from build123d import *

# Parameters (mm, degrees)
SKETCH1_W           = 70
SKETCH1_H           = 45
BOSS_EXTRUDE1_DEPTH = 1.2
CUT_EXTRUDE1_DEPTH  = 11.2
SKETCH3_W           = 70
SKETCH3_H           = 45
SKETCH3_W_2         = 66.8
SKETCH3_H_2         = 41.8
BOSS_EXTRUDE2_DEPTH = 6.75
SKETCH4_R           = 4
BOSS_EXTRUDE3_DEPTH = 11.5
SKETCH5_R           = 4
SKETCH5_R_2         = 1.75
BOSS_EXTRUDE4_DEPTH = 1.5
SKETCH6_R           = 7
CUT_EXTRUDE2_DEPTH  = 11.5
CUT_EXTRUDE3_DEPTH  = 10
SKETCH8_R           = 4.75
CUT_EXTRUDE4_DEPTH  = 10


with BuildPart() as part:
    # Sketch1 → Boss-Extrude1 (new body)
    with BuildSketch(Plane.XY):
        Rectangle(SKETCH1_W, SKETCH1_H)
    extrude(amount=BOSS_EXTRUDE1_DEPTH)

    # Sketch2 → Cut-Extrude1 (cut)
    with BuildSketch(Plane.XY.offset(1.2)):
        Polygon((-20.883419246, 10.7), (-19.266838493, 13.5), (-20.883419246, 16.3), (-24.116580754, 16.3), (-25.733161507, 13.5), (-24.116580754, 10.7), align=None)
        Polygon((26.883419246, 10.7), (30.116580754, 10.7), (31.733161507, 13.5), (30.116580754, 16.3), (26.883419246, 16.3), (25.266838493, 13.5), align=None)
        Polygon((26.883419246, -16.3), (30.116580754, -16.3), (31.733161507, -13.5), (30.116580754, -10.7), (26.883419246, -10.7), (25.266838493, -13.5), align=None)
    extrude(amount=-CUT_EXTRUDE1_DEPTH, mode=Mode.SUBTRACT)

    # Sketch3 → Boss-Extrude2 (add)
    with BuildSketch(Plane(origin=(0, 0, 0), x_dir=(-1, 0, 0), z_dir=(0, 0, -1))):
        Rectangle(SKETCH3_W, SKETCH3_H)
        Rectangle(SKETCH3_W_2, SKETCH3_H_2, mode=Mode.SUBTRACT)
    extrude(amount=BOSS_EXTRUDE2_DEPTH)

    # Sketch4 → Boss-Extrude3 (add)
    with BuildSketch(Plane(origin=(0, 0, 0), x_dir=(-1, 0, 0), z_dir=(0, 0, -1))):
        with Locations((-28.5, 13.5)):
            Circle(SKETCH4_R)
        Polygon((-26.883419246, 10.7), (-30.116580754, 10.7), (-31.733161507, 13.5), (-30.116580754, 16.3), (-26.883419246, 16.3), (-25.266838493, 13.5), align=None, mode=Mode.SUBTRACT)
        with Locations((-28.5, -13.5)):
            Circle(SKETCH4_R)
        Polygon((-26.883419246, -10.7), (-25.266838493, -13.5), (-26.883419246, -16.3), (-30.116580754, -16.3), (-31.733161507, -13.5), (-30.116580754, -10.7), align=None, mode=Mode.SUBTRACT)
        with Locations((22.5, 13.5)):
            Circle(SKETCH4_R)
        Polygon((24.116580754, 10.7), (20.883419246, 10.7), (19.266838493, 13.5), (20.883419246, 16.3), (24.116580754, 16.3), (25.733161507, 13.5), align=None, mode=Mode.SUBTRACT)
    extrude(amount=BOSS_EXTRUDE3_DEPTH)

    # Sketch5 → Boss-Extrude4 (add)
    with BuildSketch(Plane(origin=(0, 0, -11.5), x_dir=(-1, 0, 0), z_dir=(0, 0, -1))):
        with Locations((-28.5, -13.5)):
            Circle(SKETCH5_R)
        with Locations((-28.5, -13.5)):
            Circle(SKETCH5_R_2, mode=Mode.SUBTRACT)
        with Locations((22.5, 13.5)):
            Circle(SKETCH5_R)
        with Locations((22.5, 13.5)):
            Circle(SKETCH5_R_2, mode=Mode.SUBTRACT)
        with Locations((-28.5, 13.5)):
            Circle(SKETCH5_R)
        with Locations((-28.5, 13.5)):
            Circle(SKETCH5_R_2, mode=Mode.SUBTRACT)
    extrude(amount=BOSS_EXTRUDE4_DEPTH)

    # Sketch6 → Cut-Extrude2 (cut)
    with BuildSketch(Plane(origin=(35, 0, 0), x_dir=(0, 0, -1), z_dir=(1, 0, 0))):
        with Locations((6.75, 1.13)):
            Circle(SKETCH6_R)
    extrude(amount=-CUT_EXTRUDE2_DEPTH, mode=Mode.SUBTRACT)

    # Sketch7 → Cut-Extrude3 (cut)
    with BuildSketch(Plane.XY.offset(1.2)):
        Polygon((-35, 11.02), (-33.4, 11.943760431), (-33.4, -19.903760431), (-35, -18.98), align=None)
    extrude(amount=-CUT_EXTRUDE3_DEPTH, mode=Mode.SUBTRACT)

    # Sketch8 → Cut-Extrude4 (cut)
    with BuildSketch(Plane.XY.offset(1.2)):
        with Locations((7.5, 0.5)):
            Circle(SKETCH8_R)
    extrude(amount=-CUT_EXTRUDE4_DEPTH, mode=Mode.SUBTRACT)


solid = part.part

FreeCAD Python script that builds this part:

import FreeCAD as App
import Part
import Sketcher
from FreeCAD import Vector
Q = App.Units.Quantity

doc = App.newDocument("Part")
params = doc.addObject("Spreadsheet::Sheet", "Params")
for row, (alias, value) in enumerate([
    ("sketch1_width", "70 mm"),
    ("sketch1_height", "45 mm"),
    ("pad1_length", "1.2 mm"),
    ("pocket1_length", "11.2 mm"),
    ("sketch3_width", "70 mm"),
    ("sketch3_height", "45 mm"),
    ("sketch3_width2", "66.8 mm"),
    ("sketch3_height2", "41.8 mm"),
    ("pad2_length", "6.75 mm"),
    ("sketch4_diameter", "8 mm"),
    ("pad3_length", "11.5 mm"),
    ("sketch5_diameter", "8 mm"),
    ("sketch5_diameter2", "3.5 mm"),
    ("pad4_length", "1.5 mm"),
    ("sketch6_diameter", "14 mm"),
    ("pocket2_length", "11.5 mm"),
    ("sketch7_height", "30 mm"),
    ("pocket3_length", "10 mm"),
    ("sketch8_diameter", "9.5 mm"),
    ("pocket4_length", "10 mm"),
], start=1):
    params.set(f"A{row}", alias)
    params.set(f"B{row}", "=" + value)
    params.setAlias(f"B{row}", alias)

body = doc.addObject("PartDesign::Body", "Body")

# Sketch on XY plane
sketch1 = body.newObject("Sketcher::SketchObject", "Sketch")
sketch1.AttachmentSupport = (doc.getObject("XY_Plane"), [""])
sketch1.MapMode = "FlatFace"
sketch1.addGeometry([
    Part.LineSegment(Vector(-35, 22, 0), Vector(-35, -22, 0)),
    Part.LineSegment(Vector(-35, -22, 0), Vector(35, -22, 0)),
    Part.LineSegment(Vector(35, -22, 0), Vector(35, 22, 0)),
    Part.LineSegment(Vector(35, 22, 0), Vector(-35, 22, 0)),
], False)
sketch1.addConstraint([
    Sketcher.Constraint("Coincident", 0, 2, 1, 1),
    Sketcher.Constraint("Coincident", 1, 2, 2, 1),
    Sketcher.Constraint("Coincident", 2, 2, 3, 1),
    Sketcher.Constraint("Coincident", 3, 2, 0, 1),
    Sketcher.Constraint("Vertical", 0),
    Sketcher.Constraint("Horizontal", 1),
    Sketcher.Constraint("Vertical", 2),
    Sketcher.Constraint("Horizontal", 3),
    Sketcher.Constraint("Symmetric", 0, 2, 2, 2, -1, 1),
    Sketcher.Constraint("DistanceX", 1, 1, 1, 2, Q("70 mm")),
    Sketcher.Constraint("DistanceY", 0, 2, 0, 1, Q("45 mm")),
])
sketch1.setExpression("Constraints[9]", "Params.sketch1_width")
sketch1.setExpression("Constraints[10]", "Params.sketch1_height")
pad1 = body.newObject("PartDesign::Pad", "Pad")
pad1.Profile = sketch1
pad1.setExpression("Length", "Params.pad1_length")

# Sketch on XY plane
sketch2 = body.newObject("Sketcher::SketchObject", "Sketch001")
sketch2.AttachmentSupport = (doc.getObject("XY_Plane"), [""])
sketch2.MapMode = "FlatFace"
sketch2.AttachmentOffset = App.Placement(Vector(0, 0, 1.2), App.Rotation())
sketch2.addGeometry([
    Part.LineSegment(Vector(-20.9, 10.7, 0), Vector(-19.3, 13.5, 0)),  # 0
    Part.LineSegment(Vector(-19.3, 13.5, 0), Vector(-20.9, 16.3, 0)),  # 1
    Part.LineSegment(Vector(-20.9, 16.3, 0), Vector(-24.1, 16.3, 0)),  # 2
    Part.LineSegment(Vector(-24.1, 16.3, 0), Vector(-25.7, 13.5, 0)),  # 3
    Part.LineSegment(Vector(-25.7, 13.5, 0), Vector(-24.1, 10.7, 0)),  # 4
    Part.LineSegment(Vector(-24.1, 10.7, 0), Vector(-20.9, 10.7, 0)),  # 5
    Part.LineSegment(Vector(26.9, 10.7, 0), Vector(30.1, 10.7, 0)),  # 6
    Part.LineSegment(Vector(30.1, 10.7, 0), Vector(31.7, 13.5, 0)),  # 7
    Part.LineSegment(Vector(31.7, 13.5, 0), Vector(30.1, 16.3, 0)),  # 8
    Part.LineSegment(Vector(30.1, 16.3, 0), Vector(26.9, 16.3, 0)),  # 9
    Part.LineSegment(Vector(26.9, 16.3, 0), Vector(25.3, 13.5, 0)),  # 10
    Part.LineSegment(Vector(25.3, 13.5, 0), Vector(26.9, 10.7, 0)),  # 11
    Part.LineSegment(Vector(26.9, -16.3, 0), Vector(30.1, -16.3, 0)),  # 12
    Part.LineSegment(Vector(30.1, -16.3, 0), Vector(31.7, -13.5, 0)),  # 13
    Part.LineSegment(Vector(31.7, -13.5, 0), Vector(30.1, -10.7, 0)),  # 14
    Part.LineSegment(Vector(30.1, -10.7, 0), Vector(26.9, -10.7, 0)),  # 15
    Part.LineSegment(Vector(26.9, -10.7, 0), Vector(25.3, -13.5, 0)),  # 16
    Part.LineSegment(Vector(25.3, -13.5, 0), Vector(26.9, -16.3, 0)),  # 17
], False)
sketch2.addConstraint([
    Sketcher.Constraint("Coincident", 0, 2, 1, 1),
    Sketcher.Constraint("Coincident", 1, 2, 2, 1),
    Sketcher.Constraint("Coincident", 2, 2, 3, 1),
    Sketcher.Constraint("Coincident", 3, 2, 4, 1),
    Sketcher.Constraint("Coincident", 4, 2, 5, 1),
    Sketcher.Constraint("Coincident", 5, 2, 0, 1),
    Sketcher.Constraint("Coincident", 6, 2, 7, 1),
    Sketcher.Constraint("Coincident", 7, 2, 8, 1),
    Sketcher.Constraint("Coincident", 8, 2, 9, 1),
    Sketcher.Constraint("Coincident", 9, 2, 10, 1),
    Sketcher.Constraint("Coincident", 10, 2, 11, 1),
    Sketcher.Constraint("Coincident", 11, 2, 6, 1),
    Sketcher.Constraint("Coincident", 12, 2, 13, 1),
    Sketcher.Constraint("Coincident", 13, 2, 14, 1),
    Sketcher.Constraint("Coincident", 14, 2, 15, 1),
    Sketcher.Constraint("Coincident", 15, 2, 16, 1),
    Sketcher.Constraint("Coincident", 16, 2, 17, 1),
    Sketcher.Constraint("Coincident", 17, 2, 12, 1),
    Sketcher.Constraint("Horizontal", 2),
    Sketcher.Constraint("Horizontal", 5),
    Sketcher.Constraint("Horizontal", 6),
    Sketcher.Constraint("Horizontal", 9),
    Sketcher.Constraint("Horizontal", 12),
    Sketcher.Constraint("Horizontal", 15),
    Sketcher.Constraint("Symmetric", 8, 2, 12, 2, -1),
    Sketcher.Constraint("Symmetric", 7, 2, 13, 2, -1),
    Sketcher.Constraint("Symmetric", 6, 2, 14, 2, -1),
    Sketcher.Constraint("Symmetric", 10, 2, 16, 2, -1),
    Sketcher.Constraint("Parallel", 0, 3),
    Sketcher.Constraint("Parallel", 1, 4),
    Sketcher.Constraint("Parallel", 3, 7),
    Sketcher.Constraint("Parallel", 4, 8),
    Sketcher.Constraint("Parallel", 7, 10),
    Sketcher.Constraint("Parallel", 8, 11),
    Sketcher.Constraint("Parallel", 10, 13),
    Sketcher.Constraint("Parallel", 13, 16),
    Sketcher.Constraint("Parallel", 14, 17),
    Sketcher.Constraint("Horizontal", 0, 2, 3, 2),
    Sketcher.Constraint("Horizontal", 5, 2, 6, 2),
    Sketcher.Constraint("Horizontal", 3, 2, 7, 2),
    Sketcher.Constraint("Horizontal", 2, 2, 8, 2),
    Sketcher.Constraint("Horizontal", 7, 2, 10, 2),
    Sketcher.Constraint("Vertical", 2, 2, 4, 2),
    Sketcher.Constraint("Equal", 5, 6),
    Sketcher.Constraint("Angle", 0, Q("60 deg")),
    Sketcher.Constraint("DistanceX", 5, 2, 6, 2, Q("51 mm")),
    Sketcher.Constraint("DistanceY", 12, 2, 6, 2, Q("27 mm")),
    Sketcher.Constraint("DistanceY", -1, 1, 1, 2, Q("16.3 mm")),
    Sketcher.Constraint("DistanceX", 2, 2, 2, 1, Q("3.233162 mm")),
    Sketcher.Constraint("DistanceX", 0, 2, -1, 1, Q("19.266838 mm")),
])
pocket1 = body.newObject("PartDesign::Pocket", "Pocket")
pocket1.Profile = sketch2
pocket1.setExpression("Length", "Params.pocket1_length")

# Sketch on XY plane
sketch3 = body.newObject("Sketcher::SketchObject", "Sketch002")
sketch3.AttachmentSupport = (doc.getObject("XY_Plane"), [""])
sketch3.MapMode = "FlatFace"
sketch3.addGeometry([
    Part.LineSegment(Vector(35, 22, 0), Vector(35, -22, 0)),  # 0
    Part.LineSegment(Vector(35, -22, 0), Vector(-35, -22, 0)),  # 1
    Part.LineSegment(Vector(-35, -22, 0), Vector(-35, 22, 0)),  # 2
    Part.LineSegment(Vector(-35, 22, 0), Vector(35, 22, 0)),  # 3
    Part.LineSegment(Vector(-33, -21, 0), Vector(33, -21, 0)),  # 4
    Part.LineSegment(Vector(33, -21, 0), Vector(33, 21, 0)),  # 5
    Part.LineSegment(Vector(33, 21, 0), Vector(-33, 21, 0)),  # 6
    Part.LineSegment(Vector(-33, 21, 0), Vector(-33, -21, 0)),  # 7
], False)
sketch3.addConstraint([
    Sketcher.Constraint("Coincident", 0, 2, 1, 1),
    Sketcher.Constraint("Coincident", 1, 2, 2, 1),
    Sketcher.Constraint("Coincident", 2, 2, 3, 1),
    Sketcher.Constraint("Coincident", 3, 2, 0, 1),
    Sketcher.Constraint("Coincident", 4, 2, 5, 1),
    Sketcher.Constraint("Coincident", 5, 2, 6, 1),
    Sketcher.Constraint("Coincident", 6, 2, 7, 1),
    Sketcher.Constraint("Coincident", 7, 2, 4, 1),
    Sketcher.Constraint("Vertical", 0),
    Sketcher.Constraint("Horizontal", 1),
    Sketcher.Constraint("Vertical", 2),
    Sketcher.Constraint("Horizontal", 3),
    Sketcher.Constraint("Horizontal", 4),
    Sketcher.Constraint("Vertical", 5),
    Sketcher.Constraint("Horizontal", 6),
    Sketcher.Constraint("Vertical", 7),
    Sketcher.Constraint("Symmetric", 0, 2, 2, 2, -1, 1),
    Sketcher.Constraint("Symmetric", 4, 2, 6, 2, -1, 1),
    Sketcher.Constraint("DistanceX", 1, 2, 1, 1, Q("70 mm")),
    Sketcher.Constraint("DistanceY", 0, 2, 0, 1, Q("45 mm")),
    Sketcher.Constraint("DistanceX", 4, 1, 4, 2, Q("66.8 mm")),
    Sketcher.Constraint("DistanceY", 5, 1, 5, 2, Q("41.8 mm")),
])
sketch3.setExpression("Constraints[18]", "Params.sketch3_width")
sketch3.setExpression("Constraints[19]", "Params.sketch3_height")
sketch3.setExpression("Constraints[20]", "Params.sketch3_width2")
sketch3.setExpression("Constraints[21]", "Params.sketch3_height2")
pad2 = body.newObject("PartDesign::Pad", "Pad001")
pad2.Profile = sketch3
pad2.setExpression("Length", "Params.pad2_length")
pad2.Reversed = True

# Sketch on XY plane
sketch4 = body.newObject("Sketcher::SketchObject", "Sketch003")
sketch4.AttachmentSupport = (doc.getObject("XY_Plane"), [""])
sketch4.MapMode = "FlatFace"
sketch4.addGeometry([
    Part.Circle(Vector(28.5, 13.5, 0), Vector(0, 0, 1), 4),  # 0
    Part.LineSegment(Vector(25.3, 13.5, 0), Vector(26.9, 10.7, 0)),  # 1
    Part.LineSegment(Vector(26.9, 10.7, 0), Vector(30.1, 10.7, 0)),  # 2
    Part.LineSegment(Vector(30.1, 10.7, 0), Vector(31.7, 13.5, 0)),  # 3
    Part.LineSegment(Vector(31.7, 13.5, 0), Vector(30.1, 16.3, 0)),  # 4
    Part.LineSegment(Vector(30.1, 16.3, 0), Vector(26.9, 16.3, 0)),  # 5
    Part.LineSegment(Vector(26.9, 16.3, 0), Vector(25.3, 13.5, 0)),  # 6
    Part.Circle(Vector(28.5, -13.5, 0), Vector(0, 0, 1), 4),  # 7
    Part.LineSegment(Vector(30.1, -10.7, 0), Vector(26.9, -10.7, 0)),  # 8
    Part.LineSegment(Vector(26.9, -10.7, 0), Vector(25.3, -13.5, 0)),  # 9
    Part.LineSegment(Vector(25.3, -13.5, 0), Vector(26.9, -16.3, 0)),  # 10
    Part.LineSegment(Vector(26.9, -16.3, 0), Vector(30.1, -16.3, 0)),  # 11
    Part.LineSegment(Vector(30.1, -16.3, 0), Vector(31.7, -13.5, 0)),  # 12
    Part.LineSegment(Vector(31.7, -13.5, 0), Vector(30.1, -10.7, 0)),  # 13
    Part.Circle(Vector(-22.5, 13.5, 0), Vector(0, 0, 1), 4),  # 14
    Part.LineSegment(Vector(-25.7, 13.5, 0), Vector(-24.1, 10.7, 0)),  # 15
    Part.LineSegment(Vector(-24.1, 10.7, 0), Vector(-20.9, 10.7, 0)),  # 16
    Part.LineSegment(Vector(-20.9, 10.7, 0), Vector(-19.3, 13.5, 0)),  # 17
    Part.LineSegment(Vector(-19.3, 13.5, 0), Vector(-20.9, 16.3, 0)),  # 18
    Part.LineSegment(Vector(-20.9, 16.3, 0), Vector(-24.1, 16.3, 0)),  # 19
    Part.LineSegment(Vector(-24.1, 16.3, 0), Vector(-25.7, 13.5, 0)),  # 20
], False)
sketch4.addConstraint([
    Sketcher.Constraint("Coincident", 1, 2, 2, 1),
    Sketcher.Constraint("Coincident", 2, 2, 3, 1),
    Sketcher.Constraint("Coincident", 3, 2, 4, 1),
    Sketcher.Constraint("Coincident", 4, 2, 5, 1),
    Sketcher.Constraint("Coincident", 5, 2, 6, 1),
    Sketcher.Constraint("Coincident", 6, 2, 1, 1),
    Sketcher.Constraint("Coincident", 8, 2, 9, 1),
    Sketcher.Constraint("Coincident", 9, 2, 10, 1),
    Sketcher.Constraint("Coincident", 10, 2, 11, 1),
    Sketcher.Constraint("Coincident", 11, 2, 12, 1),
    Sketcher.Constraint("Coincident", 12, 2, 13, 1),
    Sketcher.Constraint("Coincident", 13, 2, 8, 1),
    Sketcher.Constraint("Coincident", 15, 2, 16, 1),
    Sketcher.Constraint("Coincident", 16, 2, 17, 1),
    Sketcher.Constraint("Coincident", 17, 2, 18, 1),
    Sketcher.Constraint("Coincident", 18, 2, 19, 1),
    Sketcher.Constraint("Coincident", 19, 2, 20, 1),
    Sketcher.Constraint("Coincident", 20, 2, 15, 1),
    Sketcher.Constraint("Horizontal", 2),
    Sketcher.Constraint("Horizontal", 5),
    Sketcher.Constraint("Horizontal", 8),
    Sketcher.Constraint("Horizontal", 11),
    Sketcher.Constraint("Horizontal", 16),
    Sketcher.Constraint("Horizontal", 19),
    Sketcher.Constraint("Equal", 0, 7),
    Sketcher.Constraint("Equal", 7, 14),
    Sketcher.Constraint("Symmetric", 0, 3, 7, 3, -1),
    Sketcher.Constraint("Symmetric", 1, 2, 8, 2, -1),
    Sketcher.Constraint("Symmetric", 6, 2, 9, 2, -1),
    Sketcher.Constraint("Symmetric", 5, 2, 10, 2, -1),
    Sketcher.Constraint("Symmetric", 3, 2, 12, 2, -1),
    Sketcher.Constraint("Parallel", 1, 4),
    Sketcher.Constraint("Parallel", 3, 6),
    Sketcher.Constraint("Parallel", 6, 9),
    Sketcher.Constraint("Parallel", 9, 12),
    Sketcher.Constraint("Parallel", 10, 13),
    Sketcher.Constraint("Parallel", 13, 15),
    Sketcher.Constraint("Parallel", 12, 17),
    Sketcher.Constraint("Parallel", 15, 18),
    Sketcher.Constraint("Parallel", 17, 20),
    Sketcher.Constraint("Horizontal", 0, 3, 14, 3),
    Sketcher.Constraint("Horizontal", 14, 3, 3, 2),
    Sketcher.Constraint("Horizontal", 3, 2, 6, 2),
    Sketcher.Constraint("Horizontal", 2, 2, 15, 2),
    Sketcher.Constraint("Horizontal", 6, 2, 17, 2),
    Sketcher.Constraint("Horizontal", 5, 2, 18, 2),
    Sketcher.Constraint("Horizontal", 17, 2, 20, 2),
    Sketcher.Constraint("Vertical", 2, 2, 4, 2),
    Sketcher.Constraint("Equal", 11, 16),
    Sketcher.Constraint("Diameter", 0, Q("8 mm")),
    Sketcher.Constraint("Angle", 1, Q("-60 deg")),
    Sketcher.Constraint("DistanceY", 7, 3, 0, 3, Q("27 mm")),
    Sketcher.Constraint("DistanceX", 14, 3, 0, 3, Q("51 mm")),
    Sketcher.Constraint("DistanceX", 15, 2, 1, 2, Q("51 mm")),
    Sketcher.Constraint("DistanceX", -1, 1, 0, 3, Q("28.5 mm")),
    Sketcher.Constraint("DistanceY", -1, 1, 1, 2, Q("10.7 mm")),
    Sketcher.Constraint("DistanceX", 2, 1, 2, 2, Q("3.233162 mm")),
    Sketcher.Constraint("DistanceX", -1, 1, 1, 2, Q("26.883419 mm")),
])
sketch4.setExpression("Constraints[49]", "Params.sketch4_diameter")
pad3 = body.newObject("PartDesign::Pad", "Pad002")
pad3.Profile = sketch4
pad3.setExpression("Length", "Params.pad3_length")
pad3.Reversed = True

# Sketch on XY plane
sketch5 = body.newObject("Sketcher::SketchObject", "Sketch004")
sketch5.AttachmentSupport = (doc.getObject("XY_Plane"), [""])
sketch5.MapMode = "FlatFace"
sketch5.AttachmentOffset = App.Placement(Vector(0, 0, -11.5), App.Rotation())
sketch5.addGeometry([
    Part.Circle(Vector(28.5, -13.5, 0), Vector(0, 0, 1), 4),  # 0
    Part.Circle(Vector(28.5, -13.5, 0), Vector(0, 0, 1), 1.8),  # 1
    Part.Circle(Vector(-22.5, 13.5, 0), Vector(0, 0, 1), 4),  # 2
    Part.Circle(Vector(-22.5, 13.5, 0), Vector(0, 0, 1), 1.8),  # 3
    Part.Circle(Vector(28.5, 13.5, 0), Vector(0, 0, 1), 4),  # 4
    Part.Circle(Vector(28.5, 13.5, 0), Vector(0, 0, 1), 1.8),  # 5
], False)
sketch5.addConstraint([
    Sketcher.Constraint("Coincident", 1, 3, 0, 3),
    Sketcher.Constraint("Coincident", 3, 3, 2, 3),
    Sketcher.Constraint("Coincident", 5, 3, 4, 3),
    Sketcher.Constraint("Equal", 0, 2),
    Sketcher.Constraint("Equal", 1, 3),
    Sketcher.Constraint("Equal", 2, 4),
    Sketcher.Constraint("Equal", 3, 5),
    Sketcher.Constraint("Symmetric", 0, 3, 4, 3, -1),
    Sketcher.Constraint("Horizontal", 3, 3, 4, 3),
    Sketcher.Constraint("Diameter", 0, Q("8 mm")),
    Sketcher.Constraint("Diameter", 1, Q("3.5 mm")),
    Sketcher.Constraint("DistanceX", 2, 3, 0, 3, Q("51 mm")),
    Sketcher.Constraint("DistanceY", 0, 3, 2, 3, Q("27 mm")),
    Sketcher.Constraint("DistanceX", -1, 1, 0, 3, Q("28.5 mm")),
])
sketch5.setExpression("Constraints[9]", "Params.sketch5_diameter")
sketch5.setExpression("Constraints[10]", "Params.sketch5_diameter2")
pad4 = body.newObject("PartDesign::Pad", "Pad003")
pad4.Profile = sketch5
pad4.setExpression("Length", "Params.pad4_length")
pad4.Reversed = True

# Sketch on YZ plane
sketch6 = body.newObject("Sketcher::SketchObject", "Sketch005")
sketch6.AttachmentSupport = (doc.getObject("YZ_Plane"), [""])
sketch6.MapMode = "FlatFace"
sketch6.AttachmentOffset = App.Placement(Vector(0, 0, 35), App.Rotation())
sketch6.addGeometry(Part.Circle(Vector(1, -7, 0), Vector(0, 0, 1), 7), False)
sketch6.addConstraint([
    Sketcher.Constraint("Diameter", 0, Q("14 mm")),
    Sketcher.Constraint("DistanceX", -1, 1, 0, 3, Q("1.13 mm")),
    Sketcher.Constraint("DistanceY", 0, 3, -1, 1, Q("6.75 mm")),
])
sketch6.setExpression("Constraints[0]", "Params.sketch6_diameter")
pocket2 = body.newObject("PartDesign::Pocket", "Pocket001")
pocket2.Profile = sketch6
pocket2.setExpression("Length", "Params.pocket2_length")

# Sketch on XY plane
sketch7 = body.newObject("Sketcher::SketchObject", "Sketch006")
sketch7.AttachmentSupport = (doc.getObject("XY_Plane"), [""])
sketch7.MapMode = "FlatFace"
sketch7.AttachmentOffset = App.Placement(Vector(0, 0, 1.2), App.Rotation())
sketch7.addGeometry([
    Part.LineSegment(Vector(-33.4, 11.9, 0), Vector(-35, 11, 0)),
    Part.LineSegment(Vector(-35, 11, 0), Vector(-35, -19, 0)),
    Part.LineSegment(Vector(-35, -19, 0), Vector(-33.4, -19.9, 0)),
    Part.LineSegment(Vector(-33.4, -19.9, 0), Vector(-33.4, 11.9, 0)),
], False)
sketch7.addConstraint([
    Sketcher.Constraint("Coincident", 0, 2, 1, 1),
    Sketcher.Constraint("Coincident", 1, 2, 2, 1),
    Sketcher.Constraint("Coincident", 2, 2, 3, 1),
    Sketcher.Constraint("Coincident", 3, 2, 0, 1),
    Sketcher.Constraint("Vertical", 1),
    Sketcher.Constraint("Vertical", 3),
    Sketcher.Constraint("Equal", 0, 2),
    Sketcher.Constraint("DistanceY", 1, 2, 1, 1, Q("30 mm")),
    Sketcher.Constraint("Angle", 0, Q("-150 deg")),
    Sketcher.Constraint("DistanceX", 0, 2, -1, 1, Q("35 mm")),
    Sketcher.Constraint("DistanceX", 2, 2, -1, 1, Q("33.4 mm")),
    Sketcher.Constraint("DistanceY", -1, 1, 0, 2, Q("11.02 mm")),
])
sketch7.setExpression("Constraints[7]", "Params.sketch7_height")
pocket3 = body.newObject("PartDesign::Pocket", "Pocket002")
pocket3.Profile = sketch7
pocket3.setExpression("Length", "Params.pocket3_length")

# Sketch on XY plane
sketch8 = body.newObject("Sketcher::SketchObject", "Sketch007")
sketch8.AttachmentSupport = (doc.getObject("XY_Plane"), [""])
sketch8.MapMode = "FlatFace"
sketch8.AttachmentOffset = App.Placement(Vector(0, 0, 1.2), App.Rotation())
sketch8.addGeometry(Part.Circle(Vector(7.5, 0.5, 0), Vector(0, 0, 1), 4.8), False)
sketch8.addConstraint([
    Sketcher.Constraint("Diameter", 0, Q("9.5 mm")),
    Sketcher.Constraint("DistanceX", -1, 1, 0, 3, Q("7.5 mm")),
    Sketcher.Constraint("DistanceY", -1, 1, 0, 3, Q("0.5 mm")),
])
sketch8.setExpression("Constraints[0]", "Params.sketch8_diameter")
pocket4 = body.newObject("PartDesign::Pocket", "Pocket003")
pocket4.Profile = sketch8
pocket4.setExpression("Length", "Params.pocket4_length")

doc.recompute()
